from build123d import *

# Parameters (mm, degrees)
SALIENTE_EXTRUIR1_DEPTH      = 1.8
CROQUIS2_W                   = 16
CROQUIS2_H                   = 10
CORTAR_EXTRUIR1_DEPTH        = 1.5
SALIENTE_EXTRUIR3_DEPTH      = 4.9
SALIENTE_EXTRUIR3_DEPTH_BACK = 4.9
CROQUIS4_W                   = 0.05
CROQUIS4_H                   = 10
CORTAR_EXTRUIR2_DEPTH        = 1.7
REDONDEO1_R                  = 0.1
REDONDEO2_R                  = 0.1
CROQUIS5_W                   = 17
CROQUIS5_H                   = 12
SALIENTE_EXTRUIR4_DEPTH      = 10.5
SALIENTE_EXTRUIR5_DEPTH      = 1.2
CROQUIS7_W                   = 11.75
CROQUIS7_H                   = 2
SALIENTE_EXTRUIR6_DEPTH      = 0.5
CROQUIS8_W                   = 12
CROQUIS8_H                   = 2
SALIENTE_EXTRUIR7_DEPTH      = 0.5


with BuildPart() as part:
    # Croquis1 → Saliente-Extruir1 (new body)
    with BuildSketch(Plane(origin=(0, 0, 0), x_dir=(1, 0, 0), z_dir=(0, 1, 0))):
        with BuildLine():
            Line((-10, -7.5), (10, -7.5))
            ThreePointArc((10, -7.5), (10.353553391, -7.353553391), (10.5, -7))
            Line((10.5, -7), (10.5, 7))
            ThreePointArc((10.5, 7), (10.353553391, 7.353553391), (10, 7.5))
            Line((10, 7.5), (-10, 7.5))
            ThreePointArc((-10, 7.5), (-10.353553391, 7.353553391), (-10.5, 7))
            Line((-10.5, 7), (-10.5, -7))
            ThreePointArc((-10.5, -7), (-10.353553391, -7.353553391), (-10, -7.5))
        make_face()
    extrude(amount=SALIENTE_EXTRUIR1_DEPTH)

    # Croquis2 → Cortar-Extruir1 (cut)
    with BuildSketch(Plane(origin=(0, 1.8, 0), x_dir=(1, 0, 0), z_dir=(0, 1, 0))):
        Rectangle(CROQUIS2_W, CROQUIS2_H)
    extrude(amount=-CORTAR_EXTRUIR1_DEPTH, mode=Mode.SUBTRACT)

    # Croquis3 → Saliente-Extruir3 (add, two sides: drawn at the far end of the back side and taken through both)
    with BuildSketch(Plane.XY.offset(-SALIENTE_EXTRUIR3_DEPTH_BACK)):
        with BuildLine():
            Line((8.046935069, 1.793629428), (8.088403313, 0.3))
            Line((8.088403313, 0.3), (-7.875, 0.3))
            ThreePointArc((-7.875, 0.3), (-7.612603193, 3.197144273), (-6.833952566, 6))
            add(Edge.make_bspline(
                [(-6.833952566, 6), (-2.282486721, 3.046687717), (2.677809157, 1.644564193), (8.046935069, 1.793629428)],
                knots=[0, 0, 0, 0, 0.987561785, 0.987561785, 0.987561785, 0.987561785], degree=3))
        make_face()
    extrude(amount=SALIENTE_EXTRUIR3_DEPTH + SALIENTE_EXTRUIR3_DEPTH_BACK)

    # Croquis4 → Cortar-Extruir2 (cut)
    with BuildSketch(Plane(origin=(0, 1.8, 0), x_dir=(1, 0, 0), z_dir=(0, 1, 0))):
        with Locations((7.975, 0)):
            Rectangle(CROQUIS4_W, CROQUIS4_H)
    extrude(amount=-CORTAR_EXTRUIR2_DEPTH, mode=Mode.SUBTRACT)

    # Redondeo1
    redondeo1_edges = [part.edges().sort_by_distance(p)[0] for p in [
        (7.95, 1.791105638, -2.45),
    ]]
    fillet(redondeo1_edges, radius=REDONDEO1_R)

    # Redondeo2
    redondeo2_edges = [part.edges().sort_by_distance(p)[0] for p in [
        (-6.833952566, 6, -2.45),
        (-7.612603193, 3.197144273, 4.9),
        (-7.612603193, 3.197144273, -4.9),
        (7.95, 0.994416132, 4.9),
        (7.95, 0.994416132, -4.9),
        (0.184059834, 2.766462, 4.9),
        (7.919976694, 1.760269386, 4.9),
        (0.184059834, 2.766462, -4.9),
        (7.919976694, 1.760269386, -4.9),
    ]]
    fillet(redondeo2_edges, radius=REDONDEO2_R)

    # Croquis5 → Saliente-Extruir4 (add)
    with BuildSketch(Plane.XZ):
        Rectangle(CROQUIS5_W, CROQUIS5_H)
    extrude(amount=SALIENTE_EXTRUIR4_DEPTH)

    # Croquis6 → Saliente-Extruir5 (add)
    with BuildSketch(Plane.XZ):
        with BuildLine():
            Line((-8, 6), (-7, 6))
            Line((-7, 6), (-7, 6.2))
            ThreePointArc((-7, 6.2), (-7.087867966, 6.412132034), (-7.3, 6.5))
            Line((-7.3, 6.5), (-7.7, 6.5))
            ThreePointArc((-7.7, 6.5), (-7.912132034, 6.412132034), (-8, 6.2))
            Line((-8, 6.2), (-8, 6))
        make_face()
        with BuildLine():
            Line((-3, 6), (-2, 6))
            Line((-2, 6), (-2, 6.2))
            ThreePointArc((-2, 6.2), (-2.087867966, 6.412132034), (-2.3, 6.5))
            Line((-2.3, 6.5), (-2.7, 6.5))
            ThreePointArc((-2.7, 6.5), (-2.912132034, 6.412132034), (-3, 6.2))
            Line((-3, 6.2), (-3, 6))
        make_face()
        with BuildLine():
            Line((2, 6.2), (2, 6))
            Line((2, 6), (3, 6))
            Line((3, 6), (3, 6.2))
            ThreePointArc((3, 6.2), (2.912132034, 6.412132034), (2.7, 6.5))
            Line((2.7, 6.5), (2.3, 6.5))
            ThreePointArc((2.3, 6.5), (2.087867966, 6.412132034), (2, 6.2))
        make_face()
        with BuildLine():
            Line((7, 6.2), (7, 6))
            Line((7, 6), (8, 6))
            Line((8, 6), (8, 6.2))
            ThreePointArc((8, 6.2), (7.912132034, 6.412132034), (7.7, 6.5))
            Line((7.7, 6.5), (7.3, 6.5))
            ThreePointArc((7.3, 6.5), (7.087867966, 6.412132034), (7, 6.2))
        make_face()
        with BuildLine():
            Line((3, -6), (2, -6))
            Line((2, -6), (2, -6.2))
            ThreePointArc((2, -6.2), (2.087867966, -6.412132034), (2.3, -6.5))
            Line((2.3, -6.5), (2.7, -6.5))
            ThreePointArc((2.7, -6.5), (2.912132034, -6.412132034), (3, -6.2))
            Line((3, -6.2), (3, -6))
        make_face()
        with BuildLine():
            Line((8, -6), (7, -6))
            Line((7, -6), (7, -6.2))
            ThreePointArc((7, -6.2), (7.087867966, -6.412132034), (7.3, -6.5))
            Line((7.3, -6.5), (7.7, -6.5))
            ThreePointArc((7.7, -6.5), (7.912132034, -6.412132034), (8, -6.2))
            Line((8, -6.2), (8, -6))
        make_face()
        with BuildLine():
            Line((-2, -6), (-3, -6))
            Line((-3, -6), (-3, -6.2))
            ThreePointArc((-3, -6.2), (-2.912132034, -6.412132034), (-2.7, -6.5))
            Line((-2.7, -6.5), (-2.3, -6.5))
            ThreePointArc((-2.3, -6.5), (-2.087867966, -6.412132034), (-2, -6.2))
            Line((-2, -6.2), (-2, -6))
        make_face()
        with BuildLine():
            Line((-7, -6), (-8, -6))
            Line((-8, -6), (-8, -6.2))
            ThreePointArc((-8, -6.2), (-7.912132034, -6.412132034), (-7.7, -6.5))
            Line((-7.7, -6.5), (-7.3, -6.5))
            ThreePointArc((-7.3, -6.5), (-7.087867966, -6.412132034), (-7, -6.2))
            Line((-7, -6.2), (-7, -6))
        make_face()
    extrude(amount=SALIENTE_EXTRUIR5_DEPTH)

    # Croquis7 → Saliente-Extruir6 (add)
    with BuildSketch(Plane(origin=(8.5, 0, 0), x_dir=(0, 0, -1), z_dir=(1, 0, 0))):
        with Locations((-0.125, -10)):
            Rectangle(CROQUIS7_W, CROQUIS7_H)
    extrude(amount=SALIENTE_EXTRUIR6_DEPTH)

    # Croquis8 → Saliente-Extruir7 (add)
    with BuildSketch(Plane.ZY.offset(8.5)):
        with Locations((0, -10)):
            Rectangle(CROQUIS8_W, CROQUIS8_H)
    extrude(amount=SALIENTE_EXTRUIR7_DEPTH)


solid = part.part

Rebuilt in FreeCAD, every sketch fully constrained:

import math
import FreeCAD as App
import Part
import Sketcher
from FreeCAD import Vector


def edges_at(feature, points):
    """Names of the edges that pass closest to the given points."""
    edges = feature.Shape.Edges
    near = lambda p: min(range(len(edges)), key=lambda i: edges[i].distToShape(Part.Vertex(*p))[0])
    return sorted({f"Edge{near(p) + 1}" for p in points})


def add_polygon(sketch, points):
    """Adds a closed chain of lines whose ends are joined by coincident constraints."""
    first, n = sketch.GeometryCount, len(points)
    for a, b in zip(points, points[1:] + points[:1]):
        sketch.addGeometry(Part.LineSegment(App.Vector(*a, 0), App.Vector(*b, 0)), False)
    for i in range(n):
        sketch.addConstraint(Sketcher.Constraint("Coincident", first + i, 2, first + (i + 1) % n, 1))

doc = App.newDocument("Part")
body = doc.addObject("PartDesign::Body", "Body")

sketch1 = doc.addObject("Sketcher::SketchObject", "Sketch")
body.addObject(sketch1)
sketch1.AttachmentSupport = (doc.XZ_Plane, [""])
sketch1.MapMode = "FlatFace"
sketch1.addGeometry([
    Part.LineSegment(Vector(-10, 7.5, 0), Vector(10, 7.5, 0)),
    Part.ArcOfCircle(Part.Circle(Vector(10, 7, 0), Vector(0, 0, 1), 0.5), math.radians(0), math.radians(90)),
    Part.LineSegment(Vector(10.5, 7, 0), Vector(10.5, -7, 0)),
    Part.ArcOfCircle(Part.Circle(Vector(10, -7, 0), Vector(0, 0, 1), 0.5), math.radians(-90), math.radians(0)),
    Part.LineSegment(Vector(10, -7.5, 0), Vector(-10, -7.5, 0)),
    Part.ArcOfCircle(Part.Circle(Vector(-10, -7, 0), Vector(0, 0, 1), 0.5), math.radians(180), math.radians(270)),
    Part.LineSegment(Vector(-10.5, -7, 0), Vector(-10.5, 7, 0)),
    Part.ArcOfCircle(Part.Circle(Vector(-10, 7, 0), Vector(0, 0, 1), 0.5), math.radians(90), math.radians(180)),
], False)
sketch1.addConstraint([
    Sketcher.Constraint("Tangent", 0, 2, 1, 2),
    Sketcher.Constraint("Tangent", 1, 1, 2, 1),
    Sketcher.Constraint("Tangent", 2, 2, 3, 2),
    Sketcher.Constraint("Tangent", 3, 1, 4, 1),
    Sketcher.Constraint("Tangent", 4, 2, 5, 2),
    Sketcher.Constraint("Tangent", 5, 1, 6, 1),
    Sketcher.Constraint("Tangent", 6, 2, 7, 2),
    Sketcher.Constraint("Tangent", 7, 1, 0, 1),
    Sketcher.Constraint("Horizontal", 0),
    Sketcher.Constraint("Vertical", 2),
    Sketcher.Constraint("Horizontal", 4),
    Sketcher.Constraint("Vertical", 6),
    Sketcher.Constraint("Equal", 1, 3),
    Sketcher.Constraint("Equal", 3, 5),
    Sketcher.Constraint("Equal", 5, 7),
    Sketcher.Constraint("Symmetric", 1, 3, 5, 3, -1, 1),
    Sketcher.Constraint("Radius", 1, 0.5),
    Sketcher.Constraint("DistanceX", 0, 1, 0, 2, 20.0),
    Sketcher.Constraint("DistanceY", 2, 2, 2, 1, 14.0),
])
pad1 = doc.addObject("PartDesign::Pad", "Pad")
body.addObject(pad1)
pad1.Profile = sketch1
pad1.Length = 1.8
pad1.Reversed = True

sketch2 = doc.addObject("Sketcher::SketchObject", "Sketch001")
body.addObject(sketch2)
sketch2.AttachmentSupport = (doc.XZ_Plane, [""])
sketch2.MapMode = "FlatFace"
sketch2.AttachmentOffset = App.Placement(Vector(0, 0, -1.8), App.Rotation())
add_polygon(sketch2, [(-8, -5), (-8, 5), (8, 5), (8, -5)])
sketch2.addConstraint([
    Sketcher.Constraint("Vertical", 0),
    Sketcher.Constraint("Horizontal", 1),
    Sketcher.Constraint("Vertical", 2),
    Sketcher.Constraint("Horizontal", 3),
    Sketcher.Constraint("Symmetric", 0, 2, 2, 2, -1, 1),
    Sketcher.Constraint("DistanceX", 1, 1, 1, 2, 16.0),
    Sketcher.Constraint("DistanceY", 0, 1, 0, 2, 10.0),
])
pocket1 = doc.addObject("PartDesign::Pocket", "Pocket")
body.addObject(pocket1)
pocket1.Profile = sketch2
pocket1.Length = 1.5
pocket1.Reversed = True

sketch3 = doc.addObject("Sketcher::SketchObject", "Sketch002")
body.addObject(sketch3)
sketch3.AttachmentSupport = (doc.XY_Plane, [""])
sketch3.MapMode = "FlatFace"
sketch3.addGeometry([
    Part.LineSegment(Vector(8.088403, 0.3, 0), Vector(8.046935, 1.793629, 0)),
    Part.BSplineCurve([Vector(-6.833953, 6, 0), Vector(-2.282487, 3.046688, 0), Vector(2.677809, 1.644564, 0), Vector(8.046935, 1.793629, 0)], [4, 4], [0, 0.987561785], False, 3, [1, 1, 1, 1], False),
    Part.ArcOfCircle(Part.Circle(Vector(8.25, 0.3, 0), Vector(0, 0, 1), 16.125), math.radians(159.299171), math.radians(180)),
    Part.LineSegment(Vector(-7.875, 0.3, 0), Vector(8.088403, 0.3, 0)),
], False)
sketch3.addConstraint([
    Sketcher.Constraint("Block", 1),
    Sketcher.Constraint("Coincident", 0, 2, 1, 2),
    Sketcher.Constraint("Coincident", 1, 1, 2, 1),
    Sketcher.Constraint("Coincident", 2, 2, 3, 1),
    Sketcher.Constraint("Coincident", 3, 2, 0, 1),
    Sketcher.Constraint("Horizontal", 3),
    Sketcher.Constraint("Radius", 2, 16.125),
    Sketcher.Constraint("DistanceY", -1, 1, 2, 3, 0.3),
    Sketcher.Constraint("DistanceY", -1, 1, 2, 2, 0.3),
    Sketcher.Constraint("DistanceX", 3, 1, 3, 2, 15.963403),
])
pad2 = doc.addObject("PartDesign::Pad", "Pad001")
body.addObject(pad2)
pad2.Profile = sketch3
pad2.Type = "TwoLengths"
pad2.Length = 4.9
pad2.Length2 = 4.9

sketch4 = doc.addObject("Sketcher::SketchObject", "Sketch003")
body.addObject(sketch4)
sketch4.AttachmentSupport = (doc.XZ_Plane, [""])
sketch4.MapMode = "FlatFace"
sketch4.AttachmentOffset = App.Placement(Vector(0, 0, -1.8), App.Rotation())
add_polygon(sketch4, [(7.95, -5), (7.95, 5), (8, 5), (8, -5)])
sketch4.addConstraint([
    Sketcher.Constraint("Vertical", 0),
    Sketcher.Constraint("Horizontal", 1),
    Sketcher.Constraint("Vertical", 2),
    Sketcher.Constraint("Horizontal", 3),
    Sketcher.Constraint("DistanceY", 0, 1, 0, 2, 10.0),
    Sketcher.Constraint("DistanceY", -1, 1, 0, 2, 5.0),
    Sketcher.Constraint("DistanceX", -1, 1, 1, 2, 8.0),
    Sketcher.Constraint("DistanceX", 1, 1, 1, 2, 0.05),
])
pocket2 = doc.addObject("PartDesign::Pocket", "Pocket001")
body.addObject(pocket2)
pocket2.Profile = sketch4
pocket2.Length = 1.7
pocket2.Reversed = True
doc.recompute()

fillet = doc.addObject("PartDesign::Fillet", "Fillet")
body.addObject(fillet)
fillet.Base = (pocket2, edges_at(pocket2, [(7.95, 1.791, 0)]))
fillet.Radius = 0.1
doc.recompute()

fillet2 = doc.addObject("PartDesign::Fillet", "Fillet001")
body.addObject(fillet2)
fillet2.Base = (fillet, edges_at(fillet, [
    (-6.834, 6, 0),
    (-7.613, 3.197, 4.9),
    (-7.613, 3.197, -4.9),
    (7.95, 0.994, 4.9),
    (7.95, 0.994, -4.9),
    (0.184, 2.766, 4.9),
    (7.92, 1.76, 4.9),
    (0.184, 2.766, -4.9),
    (7.92, 1.76, -4.9),
]))
fillet2.Radius = 0.1

sketch5 = doc.addObject("Sketcher::SketchObject", "Sketch004")
body.addObject(sketch5)
sketch5.AttachmentSupport = (doc.XZ_Plane, [""])
sketch5.MapMode = "FlatFace"
add_polygon(sketch5, [(-8.5, 6), (-8.5, -6), (8.5, -6), (8.5, 6)])
sketch5.addConstraint([
    Sketcher.Constraint("Vertical", 0),
    Sketcher.Constraint("Horizontal", 1),
    Sketcher.Constraint("Vertical", 2),
    Sketcher.Constraint("Horizontal", 3),
    Sketcher.Constraint("Symmetric", 0, 2, 2, 2, -1, 1),
    Sketcher.Constraint("DistanceX", 1, 1, 1, 2, 17.0),
    Sketcher.Constraint("DistanceY", 0, 2, 0, 1, 12.0),
])
pad3 = doc.addObject("PartDesign::Pad", "Pad002")
body.addObject(pad3)
pad3.Profile = sketch5
pad3.Length = 10.5

sketch6 = doc.addObject("Sketcher::SketchObject", "Sketch005")
body.addObject(sketch6)
sketch6.AttachmentSupport = (doc.XZ_Plane, [""])
sketch6.MapMode = "FlatFace"
sketch6.addGeometry([
    Part.LineSegment(Vector(-8, 6, 0), Vector(-7, 6, 0)),
    Part.LineSegment(Vector(-7, 6, 0), Vector(-7, 6.2, 0)),
    Part.ArcOfCircle(Part.Circle(Vector(-7.3, 6.2, 0), Vector(0, 0, 1), 0.3), math.radians(0), math.radians(90)),
    Part.LineSegment(Vector(-7.3, 6.5, 0), Vector(-7.7, 6.5, 0)),
    Part.ArcOfCircle(Part.Circle(Vector(-7.7, 6.2, 0), Vector(0, 0, 1), 0.3), math.radians(90), math.radians(180)),
    Part.LineSegment(Vector(-8, 6.2, 0), Vector(-8, 6, 0)),
    Part.LineSegment(Vector(-3, 6, 0), Vector(-2, 6, 0)),
    Part.LineSegment(Vector(-2, 6, 0), Vector(-2, 6.2, 0)),
    Part.ArcOfCircle(Part.Circle(Vector(-2.3, 6.2, 0), Vector(0, 0, 1), 0.3), math.radians(0), math.radians(90)),
    Part.LineSegment(Vector(-2.3, 6.5, 0), Vector(-2.7, 6.5, 0)),
    Part.ArcOfCircle(Part.Circle(Vector(-2.7, 6.2, 0), Vector(0, 0, 1), 0.3), math.radians(90), math.radians(180)),
    Part.LineSegment(Vector(-3, 6.2, 0), Vector(-3, 6, 0)),
    Part.LineSegment(Vector(2, 6.2, 0), Vector(2, 6, 0)),
    Part.LineSegment(Vector(2, 6, 0), Vector(3, 6, 0)),
    Part.LineSegment(Vector(3, 6, 0), Vector(3, 6.2, 0)),
    Part.ArcOfCircle(Part.Circle(Vector(2.7, 6.2, 0), Vector(0, 0, 1), 0.3), math.radians(0), math.radians(90)),
    Part.LineSegment(Vector(2.7, 6.5, 0), Vector(2.3, 6.5, 0)),
    Part.ArcOfCircle(Part.Circle(Vector(2.3, 6.2, 0), Vector(0, 0, 1), 0.3), math.radians(90), math.radians(180)),
    Part.LineSegment(Vector(7, 6.2, 0), Vector(7, 6, 0)),
    Part.LineSegment(Vector(7, 6, 0), Vector(8, 6, 0)),
    Part.LineSegment(Vector(8, 6, 0), Vector(8, 6.2, 0)),
    Part.ArcOfCircle(Part.Circle(Vector(7.7, 6.2, 0), Vector(0, 0, 1), 0.3), math.radians(0), math.radians(90)),
    Part.LineSegment(Vector(7.7, 6.5, 0), Vector(7.3, 6.5, 0)),
    Part.ArcOfCircle(Part.Circle(Vector(7.3, 6.2, 0), Vector(0, 0, 1), 0.3), math.radians(90), math.radians(180)),
    Part.LineSegment(Vector(3, -6, 0), Vector(2, -6, 0)),
    Part.LineSegment(Vector(2, -6, 0), Vector(2, -6.2, 0)),
    Part.ArcOfCircle(Part.Circle(Vector(2.3, -6.2, 0), Vector(0, 0, 1), 0.3), math.radians(-180), math.radians(-90)),
    Part.LineSegment(Vector(2.3, -6.5, 0), Vector(2.7, -6.5, 0)),
    Part.ArcOfCircle(Part.Circle(Vector(2.7, -6.2, 0), Vector(0, 0, 1), 0.3), math.radians(-90), math.radians(0)),
    Part.LineSegment(Vector(3, -6.2, 0), Vector(3, -6, 0)),
    Part.LineSegment(Vector(8, -6, 0), Vector(7, -6, 0)),
    Part.LineSegment(Vector(7, -6, 0), Vector(7, -6.2, 0)),
    Part.ArcOfCircle(Part.Circle(Vector(7.3, -6.2, 0), Vector(0, 0, 1), 0.3), math.radians(-180), math.radians(-90)),
    Part.LineSegment(Vector(7.3, -6.5, 0), Vector(7.7, -6.5, 0)),
    Part.ArcOfCircle(Part.Circle(Vector(7.7, -6.2, 0), Vector(0, 0, 1), 0.3), math.radians(-90), math.radians(0)),
    Part.LineSegment(Vector(8, -6.2, 0), Vector(8, -6, 0)),
    Part.LineSegment(Vector(-2, -6, 0), Vector(-3, -6, 0)),
    Part.LineSegment(Vector(-3, -6, 0), Vector(-3, -6.2, 0)),
    Part.ArcOfCircle(Part.Circle(Vector(-2.7, -6.2, 0), Vector(0, 0, 1), 0.3), math.radians(-180), math.radians(-90)),
    Part.LineSegment(Vector(-2.7, -6.5, 0), Vector(-2.3, -6.5, 0)),
    Part.ArcOfCircle(Part.Circle(Vector(-2.3, -6.2, 0), Vector(0, 0, 1), 0.3), math.radians(-90), math.radians(0)),
    Part.LineSegment(Vector(-2, -6.2, 0), Vector(-2, -6, 0)),
    Part.LineSegment(Vector(-7, -6, 0), Vector(-8, -6, 0)),
    Part.LineSegment(Vector(-8, -6, 0), Vector(-8, -6.2, 0)),
    Part.ArcOfCircle(Part.Circle(Vector(-7.7, -6.2, 0), Vector(0, 0, 1), 0.3), math.radians(-180), math.radians(-90)),
    Part.LineSegment(Vector(-7.7, -6.5, 0), Vector(-7.3, -6.5, 0)),
    Part.ArcOfCircle(Part.Circle(Vector(-7.3, -6.2, 0), Vector(0, 0, 1), 0.3), math.radians(-90), math.radians(0)),
    Part.LineSegment(Vector(-7, -6.2, 0), Vector(-7, -6, 0)),
], False)
sketch6.addConstraint([
    Sketcher.Constraint("Coincident", 0, 2, 1, 1),
    Sketcher.Constraint("Tangent", 1, 2, 2, 1),
    Sketcher.Constraint("Tangent", 2, 2, 3, 1),
    Sketcher.Constraint("Tangent", 3, 2, 4, 1),
    Sketcher.Constraint("Tangent", 4, 2, 5, 1),
    Sketcher.Constraint("Coincident", 5, 2, 0, 1),
    Sketcher.Constraint("Coincident", 6, 2, 7, 1),
    Sketcher.Constraint("Tangent", 7, 2, 8, 1),
    Sketcher.Constraint("Tangent", 8, 2, 9, 1),
    Sketcher.Constraint("Tangent", 9, 2, 10, 1),
    Sketcher.Constraint("Tangent", 10, 2, 11, 1),
    Sketcher.Constraint("Coincident", 11, 2, 6, 1),
    Sketcher.Constraint("Coincident", 12, 2, 13, 1),
    Sketcher.Constraint("Coincident", 13, 2, 14, 1),
    Sketcher.Constraint("Tangent", 14, 2, 15, 1),
    Sketcher.Constraint("Tangent", 15, 2, 16, 1),
    Sketcher.Constraint("Tangent", 16, 2, 17, 1),
    Sketcher.Constraint("Tangent", 17, 2, 12, 1),
    Sketcher.Constraint("Coincident", 18, 2, 19, 1),
    Sketcher.Constraint("Coincident", 19, 2, 20, 1),
    Sketcher.Constraint("Tangent", 20, 2, 21, 1),
    Sketcher.Constraint("Tangent", 21, 2, 22, 1),
    Sketcher.Constraint("Tangent", 22, 2, 23, 1),
    Sketcher.Constraint("Tangent", 23, 2, 18, 1),
    Sketcher.Constraint("Coincident", 24, 2, 25, 1),
    Sketcher.Constraint("Tangent", 25, 2, 26, 1),
    Sketcher.Constraint("Tangent", 26, 2, 27, 1),
    Sketcher.Constraint("Tangent", 27, 2, 28, 1),
    Sketcher.Constraint("Tangent", 28, 2, 29, 1),
    Sketcher.Constraint("Coincident", 29, 2, 24, 1),
    Sketcher.Constraint("Coincident", 30, 2, 31, 1),
    Sketcher.Constraint("Tangent", 31, 2, 32, 1),
    Sketcher.Constraint("Tangent", 32, 2, 33, 1),
    Sketcher.Constraint("Tangent", 33, 2, 34, 1),
    Sketcher.Constraint("Tangent", 34, 2, 35, 1),
    Sketcher.Constraint("Coincident", 35, 2, 30, 1),
    Sketcher.Constraint("Coincident", 36, 2, 37, 1),
    Sketcher.Constraint("Tangent", 37, 2, 38, 1),
    Sketcher.Constraint("Tangent", 38, 2, 39, 1),
    Sketcher.Constraint("Tangent", 39, 2, 40, 1),
    Sketcher.Constraint("Tangent", 40, 2, 41, 1),
    Sketcher.Constraint("Coincident", 41, 2, 36, 1),
    Sketcher.Constraint("Coincident", 42, 2, 43, 1),
    Sketcher.Constraint("Tangent", 43, 2, 44, 1),
    Sketcher.Constraint("Tangent", 44, 2, 45, 1),
    Sketcher.Constraint("Tangent", 45, 2, 46, 1),
    Sketcher.Constraint("Tangent", 46, 2, 47, 1),
    Sketcher.Constraint("Coincident", 47, 2, 42, 1),
    Sketcher.Constraint("Horizontal", 0),
    Sketcher.Constraint("Vertical", 1),
    Sketcher.Constraint("Horizontal", 3),
    Sketcher.Constraint("Vertical", 5),
    Sketcher.Constraint("Horizontal", 6),
    Sketcher.Constraint("Vertical", 7),
    Sketcher.Constraint("Horizontal", 9),
    Sketcher.Constraint("Vertical", 11),
    Sketcher.Constraint("Vertical", 12),
    Sketcher.Constraint("Horizontal", 13),
    Sketcher.Constraint("Vertical", 14),
    Sketcher.Constraint("Horizontal", 16),
    Sketcher.Constraint("Vertical", 18),
    Sketcher.Constraint("Horizontal", 19),
    Sketcher.Constraint("Vertical", 20),
    Sketcher.Constraint("Horizontal", 22),
    Sketcher.Constraint("Horizontal", 24),
    Sketcher.Constraint("Vertical", 25),
    Sketcher.Constraint("Horizontal", 27),
    Sketcher.Constraint("Vertical", 29),
    Sketcher.Constraint("Horizontal", 30),
    Sketcher.Constraint("Vertical", 31),
    Sketcher.Constraint("Horizontal", 33),
    Sketcher.Constraint("Vertical", 35),
    Sketcher.Constraint("Horizontal", 36),
    Sketcher.Constraint("Vertical", 37),
    Sketcher.Constraint("Horizontal", 39),
    Sketcher.Constraint("Vertical", 41),
    Sketcher.Constraint("Horizontal", 42),
    Sketcher.Constraint("Vertical", 43),
    Sketcher.Constraint("Horizontal", 45),
    Sketcher.Constraint("Vertical", 47),
    Sketcher.Constraint("Equal", 2, 4),
    Sketcher.Constraint("Equal", 4, 8),
    Sketcher.Constraint("Equal", 8, 10),
    Sketcher.Constraint("Equal", 10, 15),
    Sketcher.Constraint("Equal", 15, 17),
    Sketcher.Constraint("Equal", 17, 21),
    Sketcher.Constraint("Equal", 21, 23),
    Sketcher.Constraint("Equal", 23, 26),
    Sketcher.Constraint("Equal", 26, 28),
    Sketcher.Constraint("Equal", 28, 32),
    Sketcher.Constraint("Equal", 32, 34),
    Sketcher.Constraint("Equal", 34, 38),
    Sketcher.Constraint("Equal", 38, 40),
    Sketcher.Constraint("Equal", 40, 44),
    Sketcher.Constraint("Equal", 44, 46),
    Sketcher.Constraint("Symmetric", 8, 3, 26, 3, -1, 1),
    Sketcher.Constraint("Symmetric", 2, 3, 32, 3, -1, 1),
    Sketcher.Constraint("Symmetric", 15, 3, 38, 3, -1, 1),
    Sketcher.Constraint("Symmetric", 21, 3, 44, 3, -1, 1),
    Sketcher.Constraint("Symmetric", 11, 2, 29, 2, -1, 1),
    Sketcher.Constraint("Symmetric", 5, 2, 35, 2, -1, 1),
    Sketcher.Constraint("Symmetric", 12, 2, 41, 2, -1, 1),
    Sketcher.Constraint("Symmetric", 18, 2, 47, 2, -1, 1),
    Sketcher.Constraint("Symmetric", 10, 3, 15, 3, -2),
    Sketcher.Constraint("Symmetric", 4, 3, 21, 3, -2),
    Sketcher.Constraint("Symmetric", 6, 2, 12, 2, -2),
    Sketcher.Constraint("Symmetric", 0, 2, 18, 2, -2),
    Sketcher.Constraint("Horizontal", 4, 3, 8, 3),
    Sketcher.Constraint("Horizontal", 5, 2, 6, 2),
    Sketcher.Constraint("Equal", 0, 6),
    Sketcher.Constraint("Radius", 2, 0.3),
    Sketcher.Constraint("DistanceX", 0, 1, 0, 2, 1.0),
    Sketcher.Constraint("DistanceY", 1, 1, 1, 2, 0.2),
    Sketcher.Constraint("DistanceX", 0, 2, -1, 1, 7.0),
    Sketcher.Constraint("DistanceY", -1, 1, 0, 2, 6.0),
    Sketcher.Constraint("DistanceX", 6, 2, -1, 1, 2.0),
])
pad4 = doc.addObject("PartDesign::Pad", "Pad003")
body.addObject(pad4)
pad4.Profile = sketch6
pad4.Length = 1.2

sketch7 = doc.addObject("Sketcher::SketchObject", "Sketch006")
body.addObject(sketch7)
sketch7.AttachmentSupport = (doc.YZ_Plane, [""])
sketch7.MapMode = "FlatFace"
sketch7.AttachmentOffset = App.Placement(Vector(0, 0, 8.5), App.Rotation())
add_polygon(sketch7, [(-9, 6), (-11, 6), (-11, -5.75), (-9, -5.75)])
sketch7.addConstraint([
    Sketcher.Constraint("Horizontal", 0),
    Sketcher.Constraint("Vertical", 1),
    Sketcher.Constraint("Horizontal", 2),
    Sketcher.Constraint("Vertical", 3),
    Sketcher.Constraint("DistanceX", 0, 2, 0, 1, 2.0),
    Sketcher.Constraint("DistanceX", 0, 2, -1, 1, 11.0),
    Sketcher.Constraint("DistanceY", -1, 1, 0, 2, 6.0),
    Sketcher.Constraint("DistanceY", 1, 2, 1, 1, 11.75),
])
pad5 = doc.addObject("PartDesign::Pad", "Pad004")
body.addObject(pad5)
pad5.Profile = sketch7
pad5.Length = 0.5

sketch8 = doc.addObject("Sketcher::SketchObject", "Sketch007")
body.addObject(sketch8)
sketch8.AttachmentSupport = (doc.YZ_Plane, [""])
sketch8.MapMode = "FlatFace"
sketch8.AttachmentOffset = App.Placement(Vector(0, 0, -8.5), App.Rotation())
add_polygon(sketch8, [(-9, -6), (-11, -6), (-11, 6), (-9, 6)])
sketch8.addConstraint([
    Sketcher.Constraint("Horizontal", 0),
    Sketcher.Constraint("Vertical", 1),
    Sketcher.Constraint("Horizontal", 2),
    Sketcher.Constraint("Vertical", 3),
    Sketcher.Constraint("DistanceX", 0, 2, 0, 1, 2.0),
    Sketcher.Constraint("DistanceY", 1, 1, 1, 2, 12.0),
    Sketcher.Constraint("DistanceX", 0, 2, -1, 1, 11.0),
    Sketcher.Constraint("DistanceY", 0, 2, -1, 1, 6.0),
])
pad6 = doc.addObject("PartDesign::Pad", "Pad005")
body.addObject(pad6)
pad6.Profile = sketch8
pad6.Length = 0.5
pad6.Reversed = True

doc.recompute()
